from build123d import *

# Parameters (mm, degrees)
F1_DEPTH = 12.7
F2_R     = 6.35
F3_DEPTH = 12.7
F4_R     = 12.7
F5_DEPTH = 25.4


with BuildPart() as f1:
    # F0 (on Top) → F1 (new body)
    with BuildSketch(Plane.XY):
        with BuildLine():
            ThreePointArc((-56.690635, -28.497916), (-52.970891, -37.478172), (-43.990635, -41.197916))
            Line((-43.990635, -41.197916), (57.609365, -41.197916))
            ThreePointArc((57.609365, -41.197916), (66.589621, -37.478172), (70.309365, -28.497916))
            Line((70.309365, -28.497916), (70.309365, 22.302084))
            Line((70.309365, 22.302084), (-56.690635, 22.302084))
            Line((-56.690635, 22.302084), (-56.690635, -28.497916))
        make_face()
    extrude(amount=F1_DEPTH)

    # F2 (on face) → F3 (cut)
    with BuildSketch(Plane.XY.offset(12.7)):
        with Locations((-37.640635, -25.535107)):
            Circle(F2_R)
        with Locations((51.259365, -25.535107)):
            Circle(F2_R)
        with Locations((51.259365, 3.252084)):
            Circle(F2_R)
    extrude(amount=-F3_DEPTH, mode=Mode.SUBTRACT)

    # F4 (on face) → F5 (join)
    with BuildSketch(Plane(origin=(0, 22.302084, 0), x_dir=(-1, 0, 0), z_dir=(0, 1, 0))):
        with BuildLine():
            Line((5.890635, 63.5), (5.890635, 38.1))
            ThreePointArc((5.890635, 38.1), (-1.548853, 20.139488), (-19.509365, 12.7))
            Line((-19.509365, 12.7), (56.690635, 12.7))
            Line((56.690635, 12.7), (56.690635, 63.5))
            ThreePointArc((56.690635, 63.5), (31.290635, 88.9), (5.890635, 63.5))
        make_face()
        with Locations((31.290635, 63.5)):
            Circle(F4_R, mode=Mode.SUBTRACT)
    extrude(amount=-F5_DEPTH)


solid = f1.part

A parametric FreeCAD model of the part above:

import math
import FreeCAD as App
import Part
import Sketcher
Q = App.Units.Quantity

doc = App.newDocument("Part")
body = doc.addObject("PartDesign::Body", "Body")

# Sketch on XY plane
sketch1 = doc.addObject("Sketcher::SketchObject", "Sketch")
body.addObject(sketch1)
sketch1.AttachmentSupport = (doc.XY_Plane, [""])
sketch1.MapMode = "FlatFace"
sketch1.addGeometry([
    Part.ArcOfCircle(Part.Circle(App.Vector(-44, -28, 0), App.Vector(0, 0, 1), 13), math.radians(-180), math.radians(-90)),  # 0
    Part.LineSegment(App.Vector(-44, -41, 0), App.Vector(58, -41, 0)),  # 1
    Part.ArcOfCircle(Part.Circle(App.Vector(58, -28, 0), App.Vector(0, 0, 1), 13), math.radians(-90), math.radians(0)),  # 2
    Part.LineSegment(App.Vector(70, -28, 0), App.Vector(70, 22, 0)),  # 3
    Part.LineSegment(App.Vector(70, 22, 0), App.Vector(-57, 22, 0)),  # 4
    Part.LineSegment(App.Vector(-57, 22, 0), App.Vector(-57, -28, 0)),  # 5
], False)
sketch1.addConstraint([
    Sketcher.Constraint("Tangent", 0, 2, 1, 1),
    Sketcher.Constraint("Tangent", 1, 2, 2, 1),
    Sketcher.Constraint("Tangent", 2, 2, 3, 1),
    Sketcher.Constraint("Coincident", 3, 2, 4, 1),
    Sketcher.Constraint("Coincident", 4, 2, 5, 1),
    Sketcher.Constraint("Tangent", 5, 2, 0, 1),
    Sketcher.Constraint("Horizontal", 1),
    Sketcher.Constraint("Vertical", 3),
    Sketcher.Constraint("Horizontal", 4),
    Sketcher.Constraint("Vertical", 5),
    Sketcher.Constraint("Equal", 0, 2),
    Sketcher.Constraint("Radius", 0, Q("0.5 in")),
    Sketcher.Constraint("DistanceX", 1, 1, 1, 2, Q("4 in")),
    Sketcher.Constraint("DistanceY", 3, 1, 3, 2, Q("2 in")),
    Sketcher.Constraint("DistanceX", 0, 3, -1, 1, Q("43.990635 mm")),
    Sketcher.Constraint("DistanceY", 0, 3, -1, 1, Q("28.497916 mm")),
])
pad1 = doc.addObject("PartDesign::Pad", "Pad")
body.addObject(pad1)
pad1.Profile = sketch1
pad1.Length = Q("0.5 in")

# Sketch on XY plane
sketch2 = doc.addObject("Sketcher::SketchObject", "Sketch001")
body.addObject(sketch2)
sketch2.AttachmentSupport = (doc.XY_Plane, [""])
sketch2.MapMode = "FlatFace"
sketch2.AttachmentOffset = App.Placement(App.Vector(0, 0, 0.5 * 25.4), App.Rotation())
sketch2.addGeometry([
    Part.Circle(App.Vector(-38, -26, 0), App.Vector(0, 0, 1), 6),
    Part.Circle(App.Vector(51, -26, 0), App.Vector(0, 0, 1), 6),
    Part.Circle(App.Vector(51, 3, 0), App.Vector(0, 0, 1), 6),
], False)
sketch2.addConstraint([
    Sketcher.Constraint("Equal", 0, 1),
    Sketcher.Constraint("Equal", 1, 2),
    Sketcher.Constraint("Horizontal", 0, 3, 1, 3),
    Sketcher.Constraint("Vertical", 1, 3, 2, 3),
    Sketcher.Constraint("Diameter", 0, Q("0.5 in")),
    Sketcher.Constraint("DistanceX", 0, 3, 1, 3, Q("3.5 in")),
    Sketcher.Constraint("DistanceY", 1, 3, 2, 3, Q("28.787191 mm")),
    Sketcher.Constraint("DistanceX", 0, 3, -1, 1, Q("37.640635 mm")),
    Sketcher.Constraint("DistanceY", 0, 3, -1, 1, Q("25.535107 mm")),
])
pocket1 = doc.addObject("PartDesign::Pocket", "Pocket")
body.addObject(pocket1)
pocket1.Profile = sketch2
pocket1.Length = Q("0.5 in")

# Sketch on XZ plane
sketch3 = doc.addObject("Sketcher::SketchObject", "Sketch002")
body.addObject(sketch3)
sketch3.AttachmentSupport = (doc.XZ_Plane, [""])
sketch3.MapMode = "FlatFace"
sketch3.AttachmentOffset = App.Placement(App.Vector(0, 0, -22.302084), App.Rotation())
sketch3.addGeometry([
    Part.LineSegment(App.Vector(-6, 64, 0), App.Vector(-6, 38, 0)),  # 0
    Part.ArcOfCircle(Part.Circle(App.Vector(20, 38, 0), App.Vector(0, 0, 1), 25), math.radians(-180), math.radians(-90)),  # 1
    Part.LineSegment(App.Vector(20, 13, 0), App.Vector(-57, 13, 0)),  # 2
    Part.LineSegment(App.Vector(-57, 13, 0), App.Vector(-57, 64, 0)),  # 3
    Part.ArcOfCircle(Part.Circle(App.Vector(-31, 64, 0), App.Vector(0, 0, 1), 25), math.radians(0), math.radians(180)),  # 4
    Part.Circle(App.Vector(-31, 64, 0), App.Vector(0, 0, 1), 13),  # 5
], False)
sketch3.addConstraint([
    Sketcher.Constraint("Tangent", 0, 2, 1, 1),
    Sketcher.Constraint("Tangent", 1, 2, 2, 1),
    Sketcher.Constraint("Coincident", 2, 2, 3, 1),
    Sketcher.Constraint("Tangent", 3, 2, 4, 2),
    Sketcher.Constraint("Tangent", 4, 1, 0, 1),
    Sketcher.Constraint("Vertical", 0),
    Sketcher.Constraint("Horizontal", 2),
    Sketcher.Constraint("Vertical", 3),
    Sketcher.Constraint("Coincident", 5, 3, 4, 3),
    Sketcher.Constraint("Equal", 1, 4),
    Sketcher.Constraint("Diameter", 5, Q("1 in")),
    Sketcher.Constraint("Radius", 1, Q("1 in")),
    Sketcher.Constraint("DistanceY", 0, 2, 0, 1, Q("1 in")),
    Sketcher.Constraint("DistanceY", -1, 1, 1, 3, Q("1.5 in")),
    Sketcher.Constraint("DistanceX", -1, 1, 1, 3, Q("19.509366 mm")),
])
pad2 = doc.addObject("PartDesign::Pad", "Pad001")
body.addObject(pad2)
pad2.Profile = sketch3
pad2.Length = Q("1 in")

doc.recompute()
